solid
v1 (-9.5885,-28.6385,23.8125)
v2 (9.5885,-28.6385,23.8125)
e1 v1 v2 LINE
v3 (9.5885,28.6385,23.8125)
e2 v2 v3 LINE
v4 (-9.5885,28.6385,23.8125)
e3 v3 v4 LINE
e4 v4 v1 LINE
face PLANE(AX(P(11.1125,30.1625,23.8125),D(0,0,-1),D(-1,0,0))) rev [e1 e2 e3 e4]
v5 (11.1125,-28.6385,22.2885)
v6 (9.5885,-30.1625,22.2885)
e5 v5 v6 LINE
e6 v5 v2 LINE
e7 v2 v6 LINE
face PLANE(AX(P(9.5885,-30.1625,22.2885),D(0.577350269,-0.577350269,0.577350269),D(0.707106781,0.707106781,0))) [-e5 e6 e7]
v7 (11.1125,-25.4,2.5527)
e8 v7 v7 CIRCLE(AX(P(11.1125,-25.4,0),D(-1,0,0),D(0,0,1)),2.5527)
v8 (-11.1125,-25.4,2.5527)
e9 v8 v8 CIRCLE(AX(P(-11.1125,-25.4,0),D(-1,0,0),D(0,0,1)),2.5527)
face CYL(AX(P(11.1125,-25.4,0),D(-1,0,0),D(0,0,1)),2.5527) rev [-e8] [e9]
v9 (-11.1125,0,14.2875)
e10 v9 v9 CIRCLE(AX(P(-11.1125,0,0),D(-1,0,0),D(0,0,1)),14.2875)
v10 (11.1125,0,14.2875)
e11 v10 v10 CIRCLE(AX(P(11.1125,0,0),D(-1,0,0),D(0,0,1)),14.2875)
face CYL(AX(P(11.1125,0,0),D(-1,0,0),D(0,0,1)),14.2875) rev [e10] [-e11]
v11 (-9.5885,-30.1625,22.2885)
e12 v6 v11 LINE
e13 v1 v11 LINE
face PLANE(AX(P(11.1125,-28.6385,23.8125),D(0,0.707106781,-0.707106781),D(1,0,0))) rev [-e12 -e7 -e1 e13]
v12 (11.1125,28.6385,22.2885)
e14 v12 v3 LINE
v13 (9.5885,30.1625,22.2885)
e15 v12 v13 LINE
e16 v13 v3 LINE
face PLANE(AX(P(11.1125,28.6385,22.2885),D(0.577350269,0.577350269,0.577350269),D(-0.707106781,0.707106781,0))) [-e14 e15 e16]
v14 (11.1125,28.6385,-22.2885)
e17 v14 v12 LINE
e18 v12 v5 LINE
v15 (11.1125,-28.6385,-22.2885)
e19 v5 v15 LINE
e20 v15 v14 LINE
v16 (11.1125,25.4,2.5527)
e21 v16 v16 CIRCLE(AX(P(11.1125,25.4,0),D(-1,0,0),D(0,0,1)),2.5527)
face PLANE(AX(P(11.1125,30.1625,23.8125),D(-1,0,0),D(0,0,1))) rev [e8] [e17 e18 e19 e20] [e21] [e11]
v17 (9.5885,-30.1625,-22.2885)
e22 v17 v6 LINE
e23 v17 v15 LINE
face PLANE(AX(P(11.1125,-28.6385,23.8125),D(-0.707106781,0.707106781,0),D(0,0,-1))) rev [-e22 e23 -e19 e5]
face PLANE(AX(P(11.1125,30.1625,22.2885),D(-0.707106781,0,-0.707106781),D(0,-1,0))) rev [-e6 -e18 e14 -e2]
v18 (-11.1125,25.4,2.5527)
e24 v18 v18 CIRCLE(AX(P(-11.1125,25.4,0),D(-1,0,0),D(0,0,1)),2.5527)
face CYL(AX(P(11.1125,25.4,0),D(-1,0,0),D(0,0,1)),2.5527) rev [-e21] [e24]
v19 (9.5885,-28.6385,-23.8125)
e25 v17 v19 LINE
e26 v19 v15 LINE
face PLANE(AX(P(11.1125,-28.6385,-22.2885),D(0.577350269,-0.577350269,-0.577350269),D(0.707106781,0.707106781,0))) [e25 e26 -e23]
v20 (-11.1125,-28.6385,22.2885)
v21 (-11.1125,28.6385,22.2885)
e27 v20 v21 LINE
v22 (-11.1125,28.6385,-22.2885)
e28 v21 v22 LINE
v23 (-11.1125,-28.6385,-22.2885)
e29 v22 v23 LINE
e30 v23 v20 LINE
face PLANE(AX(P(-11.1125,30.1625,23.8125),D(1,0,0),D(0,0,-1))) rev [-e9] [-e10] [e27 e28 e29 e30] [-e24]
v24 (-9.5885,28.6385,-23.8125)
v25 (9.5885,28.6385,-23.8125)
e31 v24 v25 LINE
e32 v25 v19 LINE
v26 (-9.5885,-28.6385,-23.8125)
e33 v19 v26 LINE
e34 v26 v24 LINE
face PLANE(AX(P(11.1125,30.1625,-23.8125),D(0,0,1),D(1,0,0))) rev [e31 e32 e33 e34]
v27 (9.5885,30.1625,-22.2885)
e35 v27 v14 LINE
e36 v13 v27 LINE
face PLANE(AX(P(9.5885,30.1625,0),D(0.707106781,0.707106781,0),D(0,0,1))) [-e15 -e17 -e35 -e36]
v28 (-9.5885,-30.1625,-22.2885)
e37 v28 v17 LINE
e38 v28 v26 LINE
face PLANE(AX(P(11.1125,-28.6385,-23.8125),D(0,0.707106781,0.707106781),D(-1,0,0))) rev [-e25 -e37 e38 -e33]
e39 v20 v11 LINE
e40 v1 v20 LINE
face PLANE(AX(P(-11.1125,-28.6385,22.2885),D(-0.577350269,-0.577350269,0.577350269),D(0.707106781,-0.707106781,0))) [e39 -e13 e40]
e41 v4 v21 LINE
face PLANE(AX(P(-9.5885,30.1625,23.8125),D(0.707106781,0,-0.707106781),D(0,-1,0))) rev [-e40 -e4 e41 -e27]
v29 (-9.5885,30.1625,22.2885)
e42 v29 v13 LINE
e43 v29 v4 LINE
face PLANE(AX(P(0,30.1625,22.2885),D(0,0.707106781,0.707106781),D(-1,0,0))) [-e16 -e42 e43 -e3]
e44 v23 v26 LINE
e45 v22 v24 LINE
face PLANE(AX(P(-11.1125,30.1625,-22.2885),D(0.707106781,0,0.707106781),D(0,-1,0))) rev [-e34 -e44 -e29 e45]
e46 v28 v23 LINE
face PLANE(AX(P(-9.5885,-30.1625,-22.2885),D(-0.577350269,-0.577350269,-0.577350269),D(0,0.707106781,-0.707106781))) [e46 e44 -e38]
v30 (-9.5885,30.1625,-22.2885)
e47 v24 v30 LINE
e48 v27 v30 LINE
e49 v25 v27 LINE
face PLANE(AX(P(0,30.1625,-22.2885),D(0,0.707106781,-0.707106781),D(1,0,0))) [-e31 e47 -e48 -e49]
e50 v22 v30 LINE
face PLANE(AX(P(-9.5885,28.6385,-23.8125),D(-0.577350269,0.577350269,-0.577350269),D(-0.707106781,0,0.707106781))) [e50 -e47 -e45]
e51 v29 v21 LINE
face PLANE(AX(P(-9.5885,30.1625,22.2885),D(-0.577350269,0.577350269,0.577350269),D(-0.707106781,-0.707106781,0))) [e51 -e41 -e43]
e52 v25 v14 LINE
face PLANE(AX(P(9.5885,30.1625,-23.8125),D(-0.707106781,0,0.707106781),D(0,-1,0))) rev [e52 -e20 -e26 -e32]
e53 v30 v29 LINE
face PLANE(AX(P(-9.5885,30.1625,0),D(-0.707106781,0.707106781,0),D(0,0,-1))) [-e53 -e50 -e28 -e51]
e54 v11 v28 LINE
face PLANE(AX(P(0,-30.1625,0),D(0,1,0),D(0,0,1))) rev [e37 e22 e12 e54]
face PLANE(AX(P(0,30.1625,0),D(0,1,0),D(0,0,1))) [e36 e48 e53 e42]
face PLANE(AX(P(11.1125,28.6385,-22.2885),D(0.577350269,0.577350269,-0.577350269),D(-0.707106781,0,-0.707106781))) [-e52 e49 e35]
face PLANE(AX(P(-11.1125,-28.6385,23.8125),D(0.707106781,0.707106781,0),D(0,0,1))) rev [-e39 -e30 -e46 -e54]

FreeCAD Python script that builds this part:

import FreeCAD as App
import Part
import Sketcher
Q = App.Units.Quantity


def edges_at(feature, points):
    """Names of the edges that pass closest to the given points."""
    edges = feature.Shape.Edges
    near = lambda p: min(range(len(edges)), key=lambda i: edges[i].distToShape(Part.Vertex(*p))[0])
    return sorted({f"Edge{near(p) + 1}" for p in points})


def add_polygon(sketch, points):
    """Adds a closed chain of lines whose ends are joined by coincident constraints."""
    first, n = sketch.GeometryCount, len(points)
    for a, b in zip(points, points[1:] + points[:1]):
        sketch.addGeometry(Part.LineSegment(App.Vector(*a, 0), App.Vector(*b, 0)), False)
    for i in range(n):
        sketch.addConstraint(Sketcher.Constraint("Coincident", first + i, 2, first + (i + 1) % n, 1))

doc = App.newDocument("Part")
body = doc.addObject("PartDesign::Body", "Body")

# Sketch on XZ plane
sketch1 = body.newObject("Sketcher::SketchObject", "Sketch")
sketch1.AttachmentSupport = (doc.getObject("XZ_Plane"), [""])
sketch1.MapMode = "FlatFace"
add_polygon(sketch1, [(-11, -24), (-11, 24), (11, 24), (11, -24)])  # lines 0-3
sketch1.addConstraint(Sketcher.Constraint("Vertical", 0))
sketch1.addConstraint(Sketcher.Constraint("Horizontal", 1))
sketch1.addConstraint(Sketcher.Constraint("Vertical", 2))
sketch1.addConstraint(Sketcher.Constraint("Horizontal", 3))
sketch1.addConstraint(Sketcher.Constraint("Symmetric", 0, 2, 2, 2, -1, 1))
sketch1.addConstraint(Sketcher.Constraint("DistanceX", 1, 1, 1, 2, Q("0.875 in")))
sketch1.addConstraint(Sketcher.Constraint("DistanceY", 0, 1, 0, 2, Q("1.875 in")))
pad1 = body.newObject("PartDesign::Pad", "Pad")
pad1.Profile = sketch1
pad1.Length = Q("2.375 in")
pad1.Midplane = True

# Sketch on YZ plane
sketch2 = body.newObject("Sketcher::SketchObject", "Sketch001")
sketch2.AttachmentSupport = (doc.getObject("YZ_Plane"), [""])
sketch2.MapMode = "FlatFace"
sketch2.AttachmentOffset = App.Placement(App.Vector(0, 0, -0.4375 * 25.4), App.Rotation())
sketch2.addGeometry(Part.Circle(App.Vector(0, 0, 0), App.Vector(0, 0, 1), 14.3), False)
sketch2.addGeometry(Part.Circle(App.Vector(25.4, 0, 0), App.Vector(0, 0, 1), 2.6), False)
sketch2.addGeometry(Part.Circle(App.Vector(-25.4, 0, 0), App.Vector(0, 0, 1), 2.6), False)
sketch2.addConstraint(Sketcher.Constraint("Coincident", 0, 3, -1, 1))
sketch2.addConstraint(Sketcher.Constraint("Equal", 1, 2))
sketch2.addConstraint(Sketcher.Constraint("Symmetric", 1, 3, 2, 3, -1, 1))
sketch2.addConstraint(Sketcher.Constraint("PointOnObject", 1, 3, -1))
sketch2.addConstraint(Sketcher.Constraint("Diameter", 0, Q("1.125 in")))
sketch2.addConstraint(Sketcher.Constraint("Diameter", 1, Q("0.201 in")))
sketch2.addConstraint(Sketcher.Constraint("DistanceX", -1, 1, 1, 3, Q("1 in")))
pocket1 = body.newObject("PartDesign::Pocket", "Pocket")
pocket1.Profile = sketch2
pocket1.Type = "ThroughAll"
pocket1.Reversed = True
doc.recompute()

chamfer = body.newObject("PartDesign::Chamfer", "Chamfer")
chamfer.Base = (pocket1, edges_at(pocket1, [
    (11.113, 30.163, 0),
    (0, 30.163, -23.812),
    (-11.113, 30.163, 0),
    (0, -30.163, -23.812),
    (11.113, -30.163, 0),
    (0, -30.163, 23.812),
    (-11.113, -30.163, 0),
    (-11.113, 0, -23.812),
    (11.113, 0, -23.812),
    (11.113, 0, 23.812),
    (-11.113, 0, 23.812),
    (0, 30.163, 23.812),
]))
chamfer.Size = Q("0.06 in")

doc.recompute()
